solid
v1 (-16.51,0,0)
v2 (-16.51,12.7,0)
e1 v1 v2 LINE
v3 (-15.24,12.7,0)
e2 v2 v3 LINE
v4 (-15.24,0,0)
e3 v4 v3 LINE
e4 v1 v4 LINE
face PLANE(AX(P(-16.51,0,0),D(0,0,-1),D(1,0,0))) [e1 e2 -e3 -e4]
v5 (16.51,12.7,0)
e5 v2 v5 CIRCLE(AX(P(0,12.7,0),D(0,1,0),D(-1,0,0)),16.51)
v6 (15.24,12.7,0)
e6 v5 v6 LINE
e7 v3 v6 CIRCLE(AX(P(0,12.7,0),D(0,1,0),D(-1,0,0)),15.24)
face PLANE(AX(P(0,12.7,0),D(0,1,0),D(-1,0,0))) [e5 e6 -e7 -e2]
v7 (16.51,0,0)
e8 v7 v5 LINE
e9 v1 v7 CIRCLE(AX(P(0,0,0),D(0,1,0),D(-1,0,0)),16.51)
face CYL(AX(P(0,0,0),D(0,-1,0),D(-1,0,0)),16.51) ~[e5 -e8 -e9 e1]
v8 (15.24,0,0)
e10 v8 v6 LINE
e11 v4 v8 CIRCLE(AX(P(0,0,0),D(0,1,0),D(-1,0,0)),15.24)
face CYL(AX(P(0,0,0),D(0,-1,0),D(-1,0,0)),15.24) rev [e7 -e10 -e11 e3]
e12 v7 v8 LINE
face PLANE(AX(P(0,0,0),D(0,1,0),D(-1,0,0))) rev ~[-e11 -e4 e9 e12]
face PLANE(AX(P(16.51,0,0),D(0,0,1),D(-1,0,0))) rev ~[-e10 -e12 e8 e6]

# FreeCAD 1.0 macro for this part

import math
import FreeCAD as App
import Part
import Sketcher
Q = App.Units.Quantity

doc = App.newDocument("Part")
params = doc.addObject("Spreadsheet::Sheet", "Params")
for row, (alias, value) in enumerate([
    ("sketch1_radius", "0.6 in"),
    ("sketch1_radius2", "0.65 in"),
    ("pad1_length", "0.5 in"),
], start=1):
    params.set(f"A{row}", alias)
    params.set(f"B{row}", "=" + value)
    params.setAlias(f"B{row}", alias)

body = doc.addObject("PartDesign::Body", "Body")

# Sketch on XZ plane
sketch1 = body.newObject("Sketcher::SketchObject", "Sketch")
sketch1.AttachmentSupport = (doc.getObject("XZ_Plane"), [""])
sketch1.MapMode = "FlatFace"
sketch1.addGeometry([
    Part.ArcOfCircle(Part.Circle(App.Vector(0, 0, 0), App.Vector(0, 0, 1), 15.2), math.radians(0), math.radians(180)),
    Part.LineSegment(App.Vector(-15.2, 0, 0), App.Vector(-16.5, 0, 0)),
    Part.ArcOfCircle(Part.Circle(App.Vector(0, 0, 0), App.Vector(0, 0, 1), 16.5), math.radians(0), math.radians(180)),
    Part.LineSegment(App.Vector(16.5, 0, 0), App.Vector(15.2, 0, 0)),
], False)
sketch1.addConstraint([
    Sketcher.Constraint("Coincident", 0, 2, 1, 1),
    Sketcher.Constraint("Coincident", 1, 2, 2, 2),
    Sketcher.Constraint("Coincident", 2, 1, 3, 1),
    Sketcher.Constraint("Coincident", 3, 2, 0, 1),
    Sketcher.Constraint("Horizontal", 1),
    Sketcher.Constraint("Horizontal", 3),
    Sketcher.Constraint("Coincident", 0, 3, -1, 1),
    Sketcher.Constraint("Coincident", 2, 3, -1, 1),
    Sketcher.Constraint("PointOnObject", 0, 2, -1),
    Sketcher.Constraint("PointOnObject", 2, 1, -1),
    Sketcher.Constraint("Radius", 0, Q("0.6 in")),
    Sketcher.Constraint("Radius", 2, Q("0.65 in")),
])
sketch1.setExpression("Constraints[10]", "Params.sketch1_radius")
sketch1.setExpression("Constraints[11]", "Params.sketch1_radius2")
pad1 = body.newObject("PartDesign::Pad", "Pad")
pad1.Profile = sketch1
pad1.setExpression("Length", "Params.pad1_length")
pad1.Reversed = True

doc.recompute()
